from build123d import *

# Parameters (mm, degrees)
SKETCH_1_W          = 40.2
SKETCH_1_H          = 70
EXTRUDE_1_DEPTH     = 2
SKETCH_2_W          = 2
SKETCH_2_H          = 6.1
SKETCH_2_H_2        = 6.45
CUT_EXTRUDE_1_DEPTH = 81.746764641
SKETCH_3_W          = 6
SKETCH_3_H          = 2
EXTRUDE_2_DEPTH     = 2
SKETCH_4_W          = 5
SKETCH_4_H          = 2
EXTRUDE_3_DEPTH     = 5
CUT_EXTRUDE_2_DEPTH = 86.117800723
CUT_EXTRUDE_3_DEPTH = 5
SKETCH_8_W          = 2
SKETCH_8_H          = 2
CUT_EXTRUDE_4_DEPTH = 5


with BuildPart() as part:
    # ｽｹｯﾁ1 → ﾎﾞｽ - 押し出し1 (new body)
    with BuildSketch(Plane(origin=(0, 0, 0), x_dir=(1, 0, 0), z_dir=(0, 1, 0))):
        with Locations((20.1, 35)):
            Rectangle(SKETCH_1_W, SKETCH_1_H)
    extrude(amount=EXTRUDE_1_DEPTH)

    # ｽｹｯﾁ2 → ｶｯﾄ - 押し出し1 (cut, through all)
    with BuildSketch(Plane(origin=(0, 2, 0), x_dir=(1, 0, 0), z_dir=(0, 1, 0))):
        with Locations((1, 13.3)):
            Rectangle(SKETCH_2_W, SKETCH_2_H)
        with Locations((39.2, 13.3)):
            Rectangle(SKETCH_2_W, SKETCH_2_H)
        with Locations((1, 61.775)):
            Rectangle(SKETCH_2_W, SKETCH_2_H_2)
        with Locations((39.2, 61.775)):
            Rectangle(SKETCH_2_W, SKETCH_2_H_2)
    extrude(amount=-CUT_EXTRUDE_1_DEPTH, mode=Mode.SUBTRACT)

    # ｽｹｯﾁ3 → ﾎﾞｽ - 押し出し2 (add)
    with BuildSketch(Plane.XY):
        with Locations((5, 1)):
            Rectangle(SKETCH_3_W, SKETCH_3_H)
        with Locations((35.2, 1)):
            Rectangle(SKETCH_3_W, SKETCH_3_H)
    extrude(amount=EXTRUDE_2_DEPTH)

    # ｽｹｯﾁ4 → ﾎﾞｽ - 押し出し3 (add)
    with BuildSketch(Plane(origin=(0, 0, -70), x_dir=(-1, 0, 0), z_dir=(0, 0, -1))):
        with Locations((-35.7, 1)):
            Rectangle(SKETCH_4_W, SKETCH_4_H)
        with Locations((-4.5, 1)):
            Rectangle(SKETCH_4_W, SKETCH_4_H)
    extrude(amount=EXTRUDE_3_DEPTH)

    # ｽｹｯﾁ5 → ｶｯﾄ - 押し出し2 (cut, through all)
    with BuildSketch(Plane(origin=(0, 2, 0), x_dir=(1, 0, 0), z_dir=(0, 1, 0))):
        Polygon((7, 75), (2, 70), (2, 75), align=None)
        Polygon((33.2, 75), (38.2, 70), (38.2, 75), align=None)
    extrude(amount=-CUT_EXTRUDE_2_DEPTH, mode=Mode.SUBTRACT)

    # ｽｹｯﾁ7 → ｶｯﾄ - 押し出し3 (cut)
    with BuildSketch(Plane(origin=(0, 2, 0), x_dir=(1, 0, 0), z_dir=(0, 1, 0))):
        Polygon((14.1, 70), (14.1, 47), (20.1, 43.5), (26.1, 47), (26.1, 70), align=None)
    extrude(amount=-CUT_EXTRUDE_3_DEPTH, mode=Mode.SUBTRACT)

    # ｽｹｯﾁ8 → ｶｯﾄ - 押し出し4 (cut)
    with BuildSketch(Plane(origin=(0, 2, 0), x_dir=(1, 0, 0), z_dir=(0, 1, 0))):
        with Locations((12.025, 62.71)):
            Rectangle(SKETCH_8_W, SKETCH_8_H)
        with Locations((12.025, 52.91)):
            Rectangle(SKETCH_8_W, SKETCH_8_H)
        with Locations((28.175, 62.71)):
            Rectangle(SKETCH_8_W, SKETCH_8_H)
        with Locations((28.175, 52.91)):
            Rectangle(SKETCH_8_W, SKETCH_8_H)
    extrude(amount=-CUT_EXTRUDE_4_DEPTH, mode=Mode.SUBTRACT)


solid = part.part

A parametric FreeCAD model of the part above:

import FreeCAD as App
import Part
import Sketcher
from FreeCAD import Vector
Q = App.Units.Quantity

doc = App.newDocument("Part")
body = doc.addObject("PartDesign::Body", "Body")

sketch1 = body.newObject("Sketcher::SketchObject", "Sketch")
sketch1.AttachmentSupport = (doc.getObject("XZ_Plane"), [""])
sketch1.MapMode = "FlatFace"
sketch1.addGeometry([
    Part.LineSegment(Vector(0, -70, 0), Vector(0, 0, 0)),
    Part.LineSegment(Vector(0, 0, 0), Vector(40.2, 0, 0)),
    Part.LineSegment(Vector(40.2, 0, 0), Vector(40.2, -70, 0)),
    Part.LineSegment(Vector(40.2, -70, 0), Vector(0, -70, 0)),
], False)
sketch1.addConstraint([
    Sketcher.Constraint("Coincident", 0, 2, 1, 1),
    Sketcher.Constraint("Coincident", 1, 2, 2, 1),
    Sketcher.Constraint("Coincident", 2, 2, 3, 1),
    Sketcher.Constraint("Coincident", 3, 2, 0, 1),
    Sketcher.Constraint("Vertical", 0),
    Sketcher.Constraint("Horizontal", 1),
    Sketcher.Constraint("Vertical", 2),
    Sketcher.Constraint("Horizontal", 3),
    Sketcher.Constraint("Coincident", 0, 2, -1, 1),
    Sketcher.Constraint("DistanceY", 0, 1, 0, 2, Q("70 mm")),
    Sketcher.Constraint("DistanceX", 1, 1, 1, 2, Q("40.2 mm")),
])
pad1 = body.newObject("PartDesign::Pad", "Pad")
pad1.Profile = sketch1
pad1.Length = 2
pad1.Reversed = True

sketch2 = body.newObject("Sketcher::SketchObject", "Sketch001")
sketch2.AttachmentSupport = (doc.getObject("XZ_Plane"), [""])
sketch2.MapMode = "FlatFace"
sketch2.AttachmentOffset = App.Placement(Vector(0, 0, -2), App.Rotation())
sketch2.addGeometry([
    Part.LineSegment(Vector(0, -16.35, 0), Vector(0, -10.25, 0)),
    Part.LineSegment(Vector(0, -10.25, 0), Vector(2, -10.25, 0)),
    Part.LineSegment(Vector(2, -10.25, 0), Vector(2, -16.35, 0)),
    Part.LineSegment(Vector(2, -16.35, 0), Vector(0, -16.35, 0)),
    Part.LineSegment(Vector(38.2, -16.35, 0), Vector(38.2, -10.25, 0)),
    Part.LineSegment(Vector(38.2, -10.25, 0), Vector(40.2, -10.25, 0)),
    Part.LineSegment(Vector(40.2, -10.25, 0), Vector(40.2, -16.35, 0)),
    Part.LineSegment(Vector(40.2, -16.35, 0), Vector(38.2, -16.35, 0)),
    Part.LineSegment(Vector(0, -65, 0), Vector(0, -58.55, 0)),
    Part.LineSegment(Vector(0, -58.55, 0), Vector(2, -58.55, 0)),
    Part.LineSegment(Vector(2, -58.55, 0), Vector(2, -65, 0)),
    Part.LineSegment(Vector(2, -65, 0), Vector(0, -65, 0)),
    Part.LineSegment(Vector(38.2, -65, 0), Vector(38.2, -58.55, 0)),
    Part.LineSegment(Vector(38.2, -58.55, 0), Vector(40.2, -58.55, 0)),
    Part.LineSegment(Vector(40.2, -58.55, 0), Vector(40.2, -65, 0)),
    Part.LineSegment(Vector(40.2, -65, 0), Vector(38.2, -65, 0)),
], False)
sketch2.addConstraint([
    Sketcher.Constraint("Coincident", 0, 2, 1, 1),
    Sketcher.Constraint("Coincident", 1, 2, 2, 1),
    Sketcher.Constraint("Coincident", 2, 2, 3, 1),
    Sketcher.Constraint("Coincident", 3, 2, 0, 1),
    Sketcher.Constraint("Coincident", 4, 2, 5, 1),
    Sketcher.Constraint("Coincident", 5, 2, 6, 1),
    Sketcher.Constraint("Coincident", 6, 2, 7, 1),
    Sketcher.Constraint("Coincident", 7, 2, 4, 1),
    Sketcher.Constraint("Coincident", 8, 2, 9, 1),
    Sketcher.Constraint("Coincident", 9, 2, 10, 1),
    Sketcher.Constraint("Coincident", 10, 2, 11, 1),
    Sketcher.Constraint("Coincident", 11, 2, 8, 1),
    Sketcher.Constraint("Coincident", 12, 2, 13, 1),
    Sketcher.Constraint("Coincident", 13, 2, 14, 1),
    Sketcher.Constraint("Coincident", 14, 2, 15, 1),
    Sketcher.Constraint("Coincident", 15, 2, 12, 1),
    Sketcher.Constraint("Vertical", 0),
    Sketcher.Constraint("Horizontal", 1),
    Sketcher.Constraint("Vertical", 2),
    Sketcher.Constraint("Horizontal", 3),
    Sketcher.Constraint("Vertical", 4),
    Sketcher.Constraint("Horizontal", 5),
    Sketcher.Constraint("Vertical", 6),
    Sketcher.Constraint("Horizontal", 7),
    Sketcher.Constraint("Vertical", 8),
    Sketcher.Constraint("Horizontal", 9),
    Sketcher.Constraint("Vertical", 10),
    Sketcher.Constraint("Horizontal", 11),
    Sketcher.Constraint("Vertical", 12),
    Sketcher.Constraint("Horizontal", 13),
    Sketcher.Constraint("Vertical", 14),
    Sketcher.Constraint("Horizontal", 15),
    Sketcher.Constraint("PointOnObject", 0, 2, -2),
    Sketcher.Constraint("PointOnObject", 8, 2, -2),
    Sketcher.Constraint("Horizontal", 1, 2, 4, 2),
    Sketcher.Constraint("Horizontal", 3, 2, 6, 2),
    Sketcher.Constraint("Horizontal", 9, 2, 12, 2),
    Sketcher.Constraint("Horizontal", 11, 2, 14, 2),
    Sketcher.Constraint("Vertical", 2, 2, 9, 2),
    Sketcher.Constraint("Vertical", 7, 2, 12, 2),
    Sketcher.Constraint("Vertical", 6, 2, 13, 2),
    Sketcher.Constraint("Equal", 3, 5),
    Sketcher.Constraint("DistanceX", 1, 1, 1, 2, Q("2 mm")),
    Sketcher.Constraint("DistanceY", 0, 1, 0, 2, Q("6.1 mm")),
    Sketcher.Constraint("DistanceY", 10, 2, -1, 1, Q("65 mm")),
    Sketcher.Constraint("DistanceY", 8, 1, 8, 2, Q("6.45 mm")),
    Sketcher.Constraint("DistanceX", -1, 1, 4, 2, Q("38.2 mm")),
    Sketcher.Constraint("DistanceY", 8, 2, 3, 2, Q("42.2 mm")),
])
pocket1 = body.newObject("PartDesign::Pocket", "Pocket")
pocket1.Profile = sketch2
pocket1.Type = "ThroughAll"
pocket1.Reversed = True

sketch3 = body.newObject("Sketcher::SketchObject", "Sketch002")
sketch3.AttachmentSupport = (doc.getObject("XY_Plane"), [""])
sketch3.MapMode = "FlatFace"
sketch3.addGeometry([
    Part.LineSegment(Vector(2, 2, 0), Vector(2, 0, 0)),
    Part.LineSegment(Vector(2, 0, 0), Vector(8, 0, 0)),
    Part.LineSegment(Vector(8, 0, 0), Vector(8, 2, 0)),
    Part.LineSegment(Vector(8, 2, 0), Vector(2, 2, 0)),
    Part.LineSegment(Vector(32.2, 2, 0), Vector(32.2, 0, 0)),
    Part.LineSegment(Vector(32.2, 0, 0), Vector(38.2, 0, 0)),
    Part.LineSegment(Vector(38.2, 0, 0), Vector(38.2, 2, 0)),
    Part.LineSegment(Vector(38.2, 2, 0), Vector(32.2, 2, 0)),
], False)
sketch3.addConstraint([
    Sketcher.Constraint("Coincident", 0, 2, 1, 1),
    Sketcher.Constraint("Coincident", 1, 2, 2, 1),
    Sketcher.Constraint("Coincident", 2, 2, 3, 1),
    Sketcher.Constraint("Coincident", 3, 2, 0, 1),
    Sketcher.Constraint("Coincident", 4, 2, 5, 1),
    Sketcher.Constraint("Coincident", 5, 2, 6, 1),
    Sketcher.Constraint("Coincident", 6, 2, 7, 1),
    Sketcher.Constraint("Coincident", 7, 2, 4, 1),
    Sketcher.Constraint("Vertical", 0),
    Sketcher.Constraint("Horizontal", 1),
    Sketcher.Constraint("Vertical", 2),
    Sketcher.Constraint("Horizontal", 3),
    Sketcher.Constraint("Vertical", 4),
    Sketcher.Constraint("Horizontal", 5),
    Sketcher.Constraint("Vertical", 6),
    Sketcher.Constraint("Horizontal", 7),
    Sketcher.Constraint("PointOnObject", 0, 2, -1),
    Sketcher.Constraint("PointOnObject", 4, 2, -1),
    Sketcher.Constraint("Horizontal", 3, 2, 6, 2),
    Sketcher.Constraint("Equal", 3, 5),
    Sketcher.Constraint("DistanceX", 1, 1, 1, 2, Q("6 mm")),
    Sketcher.Constraint("DistanceY", 0, 2, 0, 1, Q("2 mm")),
    Sketcher.Constraint("DistanceX", -1, 1, 0, 2, Q("2 mm")),
    Sketcher.Constraint("DistanceX", -1, 1, 4, 2, Q("32.2 mm")),
])
pad2 = body.newObject("PartDesign::Pad", "Pad001")
pad2.Profile = sketch3
pad2.Length = 2

sketch4 = body.newObject("Sketcher::SketchObject", "Sketch003")
sketch4.AttachmentSupport = (doc.getObject("XY_Plane"), [""])
sketch4.MapMode = "FlatFace"
sketch4.AttachmentOffset = App.Placement(Vector(0, 0, -70), App.Rotation())
sketch4.addGeometry([
    Part.LineSegment(Vector(38.2, 2, 0), Vector(38.2, 0, 0)),
    Part.LineSegment(Vector(38.2, 0, 0), Vector(33.2, 0, 0)),
    Part.LineSegment(Vector(33.2, 0, 0), Vector(33.2, 2, 0)),
    Part.LineSegment(Vector(33.2, 2, 0), Vector(38.2, 2, 0)),
    Part.LineSegment(Vector(7, 2, 0), Vector(7, 0, 0)),
    Part.LineSegment(Vector(7, 0, 0), Vector(2, 0, 0)),
    Part.LineSegment(Vector(2, 0, 0), Vector(2, 2, 0)),
    Part.LineSegment(Vector(2, 2, 0), Vector(7, 2, 0)),
], False)
sketch4.addConstraint([
    Sketcher.Constraint("Coincident", 0, 2, 1, 1),
    Sketcher.Constraint("Coincident", 1, 2, 2, 1),
    Sketcher.Constraint("Coincident", 2, 2, 3, 1),
    Sketcher.Constraint("Coincident", 3, 2, 0, 1),
    Sketcher.Constraint("Coincident", 4, 2, 5, 1),
    Sketcher.Constraint("Coincident", 5, 2, 6, 1),
    Sketcher.Constraint("Coincident", 6, 2, 7, 1),
    Sketcher.Constraint("Coincident", 7, 2, 4, 1),
    Sketcher.Constraint("Vertical", 0),
    Sketcher.Constraint("Horizontal", 1),
    Sketcher.Constraint("Vertical", 2),
    Sketcher.Constraint("Horizontal", 3),
    Sketcher.Constraint("Vertical", 4),
    Sketcher.Constraint("Horizontal", 5),
    Sketcher.Constraint("Vertical", 6),
    Sketcher.Constraint("Horizontal", 7),
    Sketcher.Constraint("PointOnObject", 0, 2, -1),
    Sketcher.Constraint("PointOnObject", 4, 2, -1),
    Sketcher.Constraint("Horizontal", 3, 2, 6, 2),
    Sketcher.Constraint("Equal", 3, 5),
    Sketcher.Constraint("DistanceX", 1, 2, 1, 1, Q("5 mm")),
    Sketcher.Constraint("DistanceY", 0, 2, 0, 1, Q("2 mm")),
    Sketcher.Constraint("DistanceX", -1, 1, 4, 2, Q("7 mm")),
    Sketcher.Constraint("DistanceX", -1, 1, 0, 2, Q("38.2 mm")),
])
pad3 = body.newObject("PartDesign::Pad", "Pad002")
pad3.Profile = sketch4
pad3.Length = 5
pad3.Reversed = True

sketch5 = body.newObject("Sketcher::SketchObject", "Sketch004")
sketch5.AttachmentSupport = (doc.getObject("XZ_Plane"), [""])
sketch5.MapMode = "FlatFace"
sketch5.AttachmentOffset = App.Placement(Vector(0, 0, -2), App.Rotation())
sketch5.addGeometry([
    Part.LineSegment(Vector(2, -70, 0), Vector(7, -75, 0)),
    Part.LineSegment(Vector(7, -75, 0), Vector(2, -75, 0)),
    Part.LineSegment(Vector(2, -75, 0), Vector(2, -70, 0)),
    Part.LineSegment(Vector(33.2, -75, 0), Vector(38.2, -70, 0)),
    Part.LineSegment(Vector(38.2, -70, 0), Vector(38.2, -75, 0)),
    Part.LineSegment(Vector(38.2, -75, 0), Vector(33.2, -75, 0)),
], False)
sketch5.addConstraint([
    Sketcher.Constraint("Coincident", 0, 2, 1, 1),
    Sketcher.Constraint("Coincident", 1, 2, 2, 1),
    Sketcher.Constraint("Coincident", 2, 2, 0, 1),
    Sketcher.Constraint("Coincident", 3, 2, 4, 1),
    Sketcher.Constraint("Coincident", 4, 2, 5, 1),
    Sketcher.Constraint("Coincident", 5, 2, 3, 1),
    Sketcher.Constraint("Horizontal", 1),
    Sketcher.Constraint("Vertical", 2),
    Sketcher.Constraint("Vertical", 4),
    Sketcher.Constraint("Horizontal", 5),
    Sketcher.Constraint("Perpendicular", 0, 3),
    Sketcher.Constraint("Horizontal", 2, 2, 3, 2),
    Sketcher.Constraint("Horizontal", 1, 2, 4, 2),
    Sketcher.Constraint("Equal", 1, 5),
    Sketcher.Constraint("DistanceX", 1, 2, 1, 1, Q("5 mm")),
    Sketcher.Constraint("DistanceX", -1, 1, 0, 2, Q("7 mm")),
    Sketcher.Constraint("DistanceY", 0, 2, -1, 1, Q("75 mm")),
    Sketcher.Constraint("DistanceX", -1, 1, 3, 2, Q("38.2 mm")),
])
pocket2 = body.newObject("PartDesign::Pocket", "Pocket001")
pocket2.Profile = sketch5
pocket2.Type = "ThroughAll"
pocket2.Reversed = True

sketch6 = body.newObject("Sketcher::SketchObject", "Sketch005")
sketch6.AttachmentSupport = (doc.getObject("XZ_Plane"), [""])
sketch6.MapMode = "FlatFace"
sketch6.AttachmentOffset = App.Placement(Vector(0, 0, -2), App.Rotation())
sketch6.addGeometry([
    Part.LineSegment(Vector(14.1, -70, 0), Vector(14.1, -47, 0)),
    Part.LineSegment(Vector(14.1, -47, 0), Vector(20.1, -43.5, 0)),
    Part.LineSegment(Vector(20.1, -43.5, 0), Vector(26.1, -47, 0)),
    Part.LineSegment(Vector(26.1, -47, 0), Vector(26.1, -70, 0)),
    Part.LineSegment(Vector(26.1, -70, 0), Vector(14.1, -70, 0)),
], False)
sketch6.addConstraint([
    Sketcher.Constraint("Coincident", 0, 2, 1, 1),
    Sketcher.Constraint("Coincident", 1, 2, 2, 1),
    Sketcher.Constraint("Coincident", 2, 2, 3, 1),
    Sketcher.Constraint("Coincident", 3, 2, 4, 1),
    Sketcher.Constraint("Coincident", 4, 2, 0, 1),
    Sketcher.Constraint("Vertical", 0),
    Sketcher.Constraint("Vertical", 3),
    Sketcher.Constraint("Horizontal", 4),
    Sketcher.Constraint("Horizontal", 0, 2, 2, 2),
    Sketcher.Constraint("Equal", 1, 2),
    Sketcher.Constraint("DistanceX", 4, 2, 4, 1, Q("12 mm")),
    Sketcher.Constraint("DistanceY", 0, 1, 0, 2, Q("23 mm")),
    Sketcher.Constraint("DistanceY", 0, 2, -1, 1, Q("47 mm")),
    Sketcher.Constraint("DistanceX", -1, 1, 0, 2, Q("14.1 mm")),
    Sketcher.Constraint("DistanceY", 1, 2, -1, 1, Q("43.5 mm")),
])
pocket3 = body.newObject("PartDesign::Pocket", "Pocket002")
pocket3.Profile = sketch6
pocket3.Length = 5
pocket3.Reversed = True

sketch7 = body.newObject("Sketcher::SketchObject", "Sketch006")
sketch7.AttachmentSupport = (doc.getObject("XZ_Plane"), [""])
sketch7.MapMode = "FlatFace"
sketch7.AttachmentOffset = App.Placement(Vector(0, 0, -2), App.Rotation())
sketch7.addGeometry([
    Part.LineSegment(Vector(11.025, -63.71, 0), Vector(11.025, -61.71, 0)),
    Part.LineSegment(Vector(11.025, -61.71, 0), Vector(13.025, -61.71, 0)),
    Part.LineSegment(Vector(13.025, -61.71, 0), Vector(13.025, -63.71, 0)),
    Part.LineSegment(Vector(13.025, -63.71, 0), Vector(11.025, -63.71, 0)),
    Part.LineSegment(Vector(11.025, -53.91, 0), Vector(11.025, -51.91, 0)),
    Part.LineSegment(Vector(11.025, -51.91, 0), Vector(13.025, -51.91, 0)),
    Part.LineSegment(Vector(13.025, -51.91, 0), Vector(13.025, -53.91, 0)),
    Part.LineSegment(Vector(13.025, -53.91, 0), Vector(11.025, -53.91, 0)),
    Part.LineSegment(Vector(27.175, -63.71, 0), Vector(27.175, -61.71, 0)),
    Part.LineSegment(Vector(27.175, -61.71, 0), Vector(29.175, -61.71, 0)),
    Part.LineSegment(Vector(29.175, -61.71, 0), Vector(29.175, -63.71, 0)),
    Part.LineSegment(Vector(29.175, -63.71, 0), Vector(27.175, -63.71, 0)),
    Part.LineSegment(Vector(27.175, -53.91, 0), Vector(27.175, -51.91, 0)),
    Part.LineSegment(Vector(27.175, -51.91, 0), Vector(29.175, -51.91, 0)),
    Part.LineSegment(Vector(29.175, -51.91, 0), Vector(29.175, -53.91, 0)),
    Part.LineSegment(Vector(29.175, -53.91, 0), Vector(27.175, -53.91, 0)),
], False)
sketch7.addConstraint([
    Sketcher.Constraint("Coincident", 0, 2, 1, 1),
    Sketcher.Constraint("Coincident", 1, 2, 2, 1),
    Sketcher.Constraint("Coincident", 2, 2, 3, 1),
    Sketcher.Constraint("Coincident", 3, 2, 0, 1),
    Sketcher.Constraint("Coincident", 4, 2, 5, 1),
    Sketcher.Constraint("Coincident", 5, 2, 6, 1),
    Sketcher.Constraint("Coincident", 6, 2, 7, 1),
    Sketcher.Constraint("Coincident", 7, 2, 4, 1),
    Sketcher.Constraint("Coincident", 8, 2, 9, 1),
    Sketcher.Constraint("Coincident", 9, 2, 10, 1),
    Sketcher.Constraint("Coincident", 10, 2, 11, 1),
    Sketcher.Constraint("Coincident", 11, 2, 8, 1),
    Sketcher.Constraint("Coincident", 12, 2, 13, 1),
    Sketcher.Constraint("Coincident", 13, 2, 14, 1),
    Sketcher.Constraint("Coincident", 14, 2, 15, 1),
    Sketcher.Constraint("Coincident", 15, 2, 12, 1),
    Sketcher.Constraint("Vertical", 0),
    Sketcher.Constraint("Horizontal", 1),
    Sketcher.Constraint("Vertical", 2),
    Sketcher.Constraint("Horizontal", 3),
    Sketcher.Constraint("Vertical", 4),
    Sketcher.Constraint("Horizontal", 5),
    Sketcher.Constraint("Vertical", 6),
    Sketcher.Constraint("Horizontal", 7),
    Sketcher.Constraint("Vertical", 8),
    Sketcher.Constraint("Horizontal", 9),
    Sketcher.Constraint("Vertical", 10),
    Sketcher.Constraint("Horizontal", 11),
    Sketcher.Constraint("Vertical", 12),
    Sketcher.Constraint("Horizontal", 13),
    Sketcher.Constraint("Vertical", 14),
    Sketcher.Constraint("Horizontal", 15),
    Sketcher.Constraint("Horizontal", 1, 2, 8, 2),
    Sketcher.Constraint("Horizontal", 3, 2, 10, 2),
    Sketcher.Constraint("Horizontal", 5, 2, 12, 2),
    Sketcher.Constraint("Horizontal", 7, 2, 14, 2),
    Sketcher.Constraint("Vertical", 3, 2, 4, 2),
    Sketcher.Constraint("Vertical", 2, 2, 5, 2),
    Sketcher.Constraint("Vertical", 11, 2, 12, 2),
    Sketcher.Constraint("Vertical", 10, 2, 13, 2),
    Sketcher.Constraint("Equal", 7, 9),
    Sketcher.Constraint("Equal", 15, 0),
    Sketcher.Constraint("Equal", 2, 4),
    Sketcher.Constraint("DistanceX", 1, 1, 1, 2, Q("2 mm")),
    Sketcher.Constraint("DistanceY", 0, 2, 4, 2, Q("9.8 mm")),
    Sketcher.Constraint("DistanceY", 0, 2, -1, 1, Q("61.71 mm")),
    Sketcher.Constraint("DistanceX", 1, 2, 8, 2, Q("14.15 mm")),
    Sketcher.Constraint("DistanceX", -1, 1, 0, 2, Q("11.025 mm")),
])
pocket4 = body.newObject("PartDesign::Pocket", "Pocket003")
pocket4.Profile = sketch7
pocket4.Length = 5
pocket4.Reversed = True

doc.recompute()
